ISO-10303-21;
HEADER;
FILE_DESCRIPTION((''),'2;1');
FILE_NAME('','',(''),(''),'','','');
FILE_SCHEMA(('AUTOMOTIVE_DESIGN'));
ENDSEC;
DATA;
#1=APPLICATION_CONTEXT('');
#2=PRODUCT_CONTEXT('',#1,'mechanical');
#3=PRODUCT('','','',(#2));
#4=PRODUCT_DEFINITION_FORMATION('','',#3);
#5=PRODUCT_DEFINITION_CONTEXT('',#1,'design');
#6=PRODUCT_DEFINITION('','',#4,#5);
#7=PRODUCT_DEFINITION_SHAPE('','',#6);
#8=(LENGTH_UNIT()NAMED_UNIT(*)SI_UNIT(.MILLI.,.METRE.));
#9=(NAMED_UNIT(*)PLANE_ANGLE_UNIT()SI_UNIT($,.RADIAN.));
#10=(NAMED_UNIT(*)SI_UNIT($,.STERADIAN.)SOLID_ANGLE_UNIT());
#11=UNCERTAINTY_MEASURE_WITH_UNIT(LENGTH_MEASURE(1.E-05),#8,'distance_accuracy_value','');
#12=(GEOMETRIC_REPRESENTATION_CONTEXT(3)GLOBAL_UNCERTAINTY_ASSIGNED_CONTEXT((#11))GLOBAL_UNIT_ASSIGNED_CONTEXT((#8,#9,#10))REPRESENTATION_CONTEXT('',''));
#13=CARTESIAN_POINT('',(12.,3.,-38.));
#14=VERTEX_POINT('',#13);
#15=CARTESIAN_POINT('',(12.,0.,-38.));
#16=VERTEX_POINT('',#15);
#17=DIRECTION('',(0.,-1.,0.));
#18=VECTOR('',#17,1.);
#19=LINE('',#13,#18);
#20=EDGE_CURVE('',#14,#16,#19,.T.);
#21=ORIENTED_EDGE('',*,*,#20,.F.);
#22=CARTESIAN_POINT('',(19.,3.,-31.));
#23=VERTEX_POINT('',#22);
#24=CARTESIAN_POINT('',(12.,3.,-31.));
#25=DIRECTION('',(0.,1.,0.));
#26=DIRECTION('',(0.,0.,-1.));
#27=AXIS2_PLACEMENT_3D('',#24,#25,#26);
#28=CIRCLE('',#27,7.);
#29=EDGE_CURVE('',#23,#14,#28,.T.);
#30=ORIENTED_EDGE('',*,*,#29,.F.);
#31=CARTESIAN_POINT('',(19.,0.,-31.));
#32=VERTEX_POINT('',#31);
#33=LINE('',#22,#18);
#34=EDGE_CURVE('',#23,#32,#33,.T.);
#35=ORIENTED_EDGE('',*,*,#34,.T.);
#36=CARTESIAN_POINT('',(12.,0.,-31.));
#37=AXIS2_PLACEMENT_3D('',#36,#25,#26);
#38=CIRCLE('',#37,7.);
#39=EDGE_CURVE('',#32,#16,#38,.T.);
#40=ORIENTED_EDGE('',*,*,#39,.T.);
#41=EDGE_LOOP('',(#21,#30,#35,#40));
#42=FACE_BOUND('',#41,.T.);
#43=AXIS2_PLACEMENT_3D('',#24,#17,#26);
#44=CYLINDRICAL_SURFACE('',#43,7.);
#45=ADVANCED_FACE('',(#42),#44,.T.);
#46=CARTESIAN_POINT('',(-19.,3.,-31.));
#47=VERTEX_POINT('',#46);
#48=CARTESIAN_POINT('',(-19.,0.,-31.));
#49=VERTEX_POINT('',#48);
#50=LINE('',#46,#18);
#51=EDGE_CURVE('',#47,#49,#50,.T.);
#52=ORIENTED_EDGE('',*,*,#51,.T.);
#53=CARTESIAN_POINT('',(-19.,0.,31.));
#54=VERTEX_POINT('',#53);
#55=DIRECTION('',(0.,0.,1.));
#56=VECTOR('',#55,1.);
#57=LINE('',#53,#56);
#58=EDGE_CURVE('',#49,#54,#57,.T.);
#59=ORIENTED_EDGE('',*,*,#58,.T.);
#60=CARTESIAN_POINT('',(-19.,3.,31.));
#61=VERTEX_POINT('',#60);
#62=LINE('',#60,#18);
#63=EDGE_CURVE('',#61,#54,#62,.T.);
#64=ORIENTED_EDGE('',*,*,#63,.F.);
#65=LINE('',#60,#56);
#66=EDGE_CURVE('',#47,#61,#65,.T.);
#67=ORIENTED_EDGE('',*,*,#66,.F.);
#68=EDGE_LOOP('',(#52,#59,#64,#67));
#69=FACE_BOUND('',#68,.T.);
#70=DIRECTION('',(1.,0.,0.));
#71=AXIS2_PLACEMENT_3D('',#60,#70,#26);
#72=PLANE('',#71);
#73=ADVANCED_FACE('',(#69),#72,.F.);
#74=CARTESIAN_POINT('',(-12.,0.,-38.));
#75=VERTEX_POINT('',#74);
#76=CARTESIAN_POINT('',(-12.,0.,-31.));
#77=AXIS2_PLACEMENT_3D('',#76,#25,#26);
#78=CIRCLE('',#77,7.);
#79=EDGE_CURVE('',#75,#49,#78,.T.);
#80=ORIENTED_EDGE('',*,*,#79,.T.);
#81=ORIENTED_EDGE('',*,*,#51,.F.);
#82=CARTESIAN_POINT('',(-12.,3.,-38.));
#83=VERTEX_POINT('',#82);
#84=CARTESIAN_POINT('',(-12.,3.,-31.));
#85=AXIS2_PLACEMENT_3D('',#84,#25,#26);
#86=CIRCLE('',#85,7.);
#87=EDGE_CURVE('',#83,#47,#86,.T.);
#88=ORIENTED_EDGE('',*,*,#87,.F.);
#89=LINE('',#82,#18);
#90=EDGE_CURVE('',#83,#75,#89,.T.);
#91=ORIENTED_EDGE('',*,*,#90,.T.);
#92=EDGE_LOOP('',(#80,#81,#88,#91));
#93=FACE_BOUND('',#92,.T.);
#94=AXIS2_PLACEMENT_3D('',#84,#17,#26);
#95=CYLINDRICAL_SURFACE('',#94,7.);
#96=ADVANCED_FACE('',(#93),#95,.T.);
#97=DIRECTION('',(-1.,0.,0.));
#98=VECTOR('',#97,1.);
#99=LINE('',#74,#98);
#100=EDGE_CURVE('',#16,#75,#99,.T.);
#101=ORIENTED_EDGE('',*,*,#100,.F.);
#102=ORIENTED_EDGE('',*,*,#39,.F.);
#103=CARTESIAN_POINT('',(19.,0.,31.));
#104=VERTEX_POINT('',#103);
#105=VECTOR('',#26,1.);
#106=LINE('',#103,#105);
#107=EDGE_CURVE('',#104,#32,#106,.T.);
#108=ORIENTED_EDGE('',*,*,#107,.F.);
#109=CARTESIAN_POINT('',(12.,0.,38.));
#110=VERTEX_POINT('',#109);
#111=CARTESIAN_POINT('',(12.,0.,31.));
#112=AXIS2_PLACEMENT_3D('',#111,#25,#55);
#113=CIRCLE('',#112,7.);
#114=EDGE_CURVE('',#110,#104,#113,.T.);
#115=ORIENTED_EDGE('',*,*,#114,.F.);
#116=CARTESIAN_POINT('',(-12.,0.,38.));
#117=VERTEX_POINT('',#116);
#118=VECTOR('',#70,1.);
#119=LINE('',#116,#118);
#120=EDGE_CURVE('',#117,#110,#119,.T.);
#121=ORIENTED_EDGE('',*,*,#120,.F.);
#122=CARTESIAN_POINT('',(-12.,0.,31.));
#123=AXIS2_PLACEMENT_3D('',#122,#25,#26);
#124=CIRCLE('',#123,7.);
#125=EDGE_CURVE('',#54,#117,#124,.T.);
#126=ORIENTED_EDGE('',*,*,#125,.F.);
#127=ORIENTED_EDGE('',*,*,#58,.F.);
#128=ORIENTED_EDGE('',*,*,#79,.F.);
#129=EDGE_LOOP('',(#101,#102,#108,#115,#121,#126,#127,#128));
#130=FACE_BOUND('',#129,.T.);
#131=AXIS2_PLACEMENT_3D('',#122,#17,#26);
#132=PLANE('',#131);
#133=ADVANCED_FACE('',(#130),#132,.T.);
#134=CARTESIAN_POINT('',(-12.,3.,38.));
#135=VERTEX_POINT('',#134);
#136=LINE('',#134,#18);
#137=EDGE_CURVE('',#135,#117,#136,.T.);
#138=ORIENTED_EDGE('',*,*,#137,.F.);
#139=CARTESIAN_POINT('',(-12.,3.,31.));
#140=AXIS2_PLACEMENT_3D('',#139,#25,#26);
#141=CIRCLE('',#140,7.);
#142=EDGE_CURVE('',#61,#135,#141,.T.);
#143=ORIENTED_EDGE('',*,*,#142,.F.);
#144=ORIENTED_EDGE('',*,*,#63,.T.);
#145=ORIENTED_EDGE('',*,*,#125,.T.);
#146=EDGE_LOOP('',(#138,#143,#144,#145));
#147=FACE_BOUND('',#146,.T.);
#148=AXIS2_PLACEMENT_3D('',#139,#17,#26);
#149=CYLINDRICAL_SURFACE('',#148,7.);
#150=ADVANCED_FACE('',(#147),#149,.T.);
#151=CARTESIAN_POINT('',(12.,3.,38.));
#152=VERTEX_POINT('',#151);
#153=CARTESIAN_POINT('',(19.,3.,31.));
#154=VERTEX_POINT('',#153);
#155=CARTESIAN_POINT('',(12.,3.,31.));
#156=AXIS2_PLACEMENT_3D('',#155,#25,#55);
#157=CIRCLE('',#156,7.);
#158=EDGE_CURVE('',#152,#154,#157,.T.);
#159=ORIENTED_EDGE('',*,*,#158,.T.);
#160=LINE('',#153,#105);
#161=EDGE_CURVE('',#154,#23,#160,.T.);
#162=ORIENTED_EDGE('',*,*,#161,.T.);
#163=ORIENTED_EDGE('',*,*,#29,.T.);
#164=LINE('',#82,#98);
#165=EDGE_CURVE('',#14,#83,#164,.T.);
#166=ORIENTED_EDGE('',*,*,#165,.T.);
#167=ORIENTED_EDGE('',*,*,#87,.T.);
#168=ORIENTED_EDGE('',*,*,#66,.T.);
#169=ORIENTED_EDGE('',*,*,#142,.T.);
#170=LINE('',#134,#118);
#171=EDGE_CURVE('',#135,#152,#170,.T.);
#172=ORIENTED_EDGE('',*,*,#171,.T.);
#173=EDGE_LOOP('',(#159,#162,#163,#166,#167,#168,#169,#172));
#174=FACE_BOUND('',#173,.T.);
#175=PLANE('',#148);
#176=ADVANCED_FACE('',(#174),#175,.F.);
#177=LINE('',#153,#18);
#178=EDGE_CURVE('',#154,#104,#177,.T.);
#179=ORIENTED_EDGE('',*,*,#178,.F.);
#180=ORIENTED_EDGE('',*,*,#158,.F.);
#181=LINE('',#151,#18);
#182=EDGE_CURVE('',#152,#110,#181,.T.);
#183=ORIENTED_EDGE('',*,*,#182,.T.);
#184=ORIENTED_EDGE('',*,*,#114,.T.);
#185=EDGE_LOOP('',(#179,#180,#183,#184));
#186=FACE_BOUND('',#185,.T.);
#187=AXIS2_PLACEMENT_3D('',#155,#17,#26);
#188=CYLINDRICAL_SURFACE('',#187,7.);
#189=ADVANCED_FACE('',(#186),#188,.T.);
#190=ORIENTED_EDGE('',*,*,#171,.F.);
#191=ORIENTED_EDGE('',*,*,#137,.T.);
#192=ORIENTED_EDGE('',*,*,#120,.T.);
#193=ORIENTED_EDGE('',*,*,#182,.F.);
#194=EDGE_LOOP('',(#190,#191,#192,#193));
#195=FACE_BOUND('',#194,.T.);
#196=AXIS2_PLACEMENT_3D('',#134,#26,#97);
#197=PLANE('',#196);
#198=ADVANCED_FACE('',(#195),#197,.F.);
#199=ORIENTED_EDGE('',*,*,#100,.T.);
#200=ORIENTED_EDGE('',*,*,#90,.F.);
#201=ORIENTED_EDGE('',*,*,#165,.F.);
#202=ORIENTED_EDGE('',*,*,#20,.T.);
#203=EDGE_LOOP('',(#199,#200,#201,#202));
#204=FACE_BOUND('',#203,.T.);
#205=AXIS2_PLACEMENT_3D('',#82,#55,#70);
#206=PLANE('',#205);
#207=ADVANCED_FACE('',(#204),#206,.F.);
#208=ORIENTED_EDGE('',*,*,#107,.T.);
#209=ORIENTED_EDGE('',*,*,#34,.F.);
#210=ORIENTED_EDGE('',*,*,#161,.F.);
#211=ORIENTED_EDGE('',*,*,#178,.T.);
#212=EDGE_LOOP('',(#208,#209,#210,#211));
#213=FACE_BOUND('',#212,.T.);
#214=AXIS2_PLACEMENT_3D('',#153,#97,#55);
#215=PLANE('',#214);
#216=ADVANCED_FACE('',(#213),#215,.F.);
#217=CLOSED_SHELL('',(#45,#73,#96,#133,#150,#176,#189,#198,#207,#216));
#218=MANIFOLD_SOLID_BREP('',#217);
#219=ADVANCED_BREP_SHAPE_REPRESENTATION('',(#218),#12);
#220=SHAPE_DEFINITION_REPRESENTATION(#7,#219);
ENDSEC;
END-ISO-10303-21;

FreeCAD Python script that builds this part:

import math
import FreeCAD as App
import Part
import Sketcher

V = App.Vector
Q = App.Units.Quantity

doc = App.newDocument("Part")
params = doc.addObject("Spreadsheet::Sheet", "Params")
for row, (alias, value) in enumerate([
    ("sketch1_radius", "7 mm"),
    ("sketch1_width", "24 mm"),
    ("sketch1_height", "62 mm"),
    ("pad1_length", "3 mm"),
], start=1):
    params.set(f"A{row}", alias)
    params.set(f"B{row}", "=" + value)
    params.setAlias(f"B{row}", alias)

body = doc.addObject("PartDesign::Body", "Body")

sketch1 = body.newObject("Sketcher::SketchObject", "Sketch")
sketch1.AttachmentSupport = (doc.getObject("XZ_Plane"), [""])
sketch1.MapMode = "FlatFace"
sketch1.addGeometry([
    Part.LineSegment(V(-12, 38, 0), V(12, 38, 0)),
    Part.ArcOfCircle(Part.Circle(V(12, 31, 0), V(0, 0, 1), 7), math.radians(0), math.radians(90)),
    Part.LineSegment(V(19, 31, 0), V(19, -31, 0)),
    Part.ArcOfCircle(Part.Circle(V(12, -31, 0), V(0, 0, 1), 7), math.radians(-90), math.radians(0)),
    Part.LineSegment(V(12, -38, 0), V(-12, -38, 0)),
    Part.ArcOfCircle(Part.Circle(V(-12, -31, 0), V(0, 0, 1), 7), math.radians(-180), math.radians(-90)),
    Part.LineSegment(V(-19, -31, 0), V(-19, 31, 0)),
    Part.ArcOfCircle(Part.Circle(V(-12, 31, 0), V(0, 0, 1), 7), math.radians(90), math.radians(180)),
], False)
sketch1.addConstraint([
    Sketcher.Constraint("Tangent", 0, 2, 1, 2),
    Sketcher.Constraint("Tangent", 1, 1, 2, 1),
    Sketcher.Constraint("Tangent", 2, 2, 3, 2),
    Sketcher.Constraint("Tangent", 3, 1, 4, 1),
    Sketcher.Constraint("Tangent", 4, 2, 5, 2),
    Sketcher.Constraint("Tangent", 5, 1, 6, 1),
    Sketcher.Constraint("Tangent", 6, 2, 7, 2),
    Sketcher.Constraint("Tangent", 7, 1, 0, 1),
    Sketcher.Constraint("Horizontal", 0),
    Sketcher.Constraint("Vertical", 2),
    Sketcher.Constraint("Horizontal", 4),
    Sketcher.Constraint("Vertical", 6),
    Sketcher.Constraint("Equal", 1, 3),
    Sketcher.Constraint("Equal", 3, 5),
    Sketcher.Constraint("Equal", 5, 7),
    Sketcher.Constraint("Symmetric", 1, 3, 5, 3, -1, 1),
    Sketcher.Constraint("Radius", 1, Q("7 mm")),
    Sketcher.Constraint("DistanceX", 0, 1, 0, 2, Q("24 mm")),
    Sketcher.Constraint("DistanceY", 2, 2, 2, 1, Q("62 mm")),
])
sketch1.setExpression("Constraints[16]", "Params.sketch1_radius")
sketch1.setExpression("Constraints[17]", "Params.sketch1_width")
sketch1.setExpression("Constraints[18]", "Params.sketch1_height")
pad1 = body.newObject("PartDesign::Pad", "Pad")
pad1.Profile = sketch1
pad1.setExpression("Length", "Params.pad1_length")
pad1.Reversed = True

doc.recompute()
